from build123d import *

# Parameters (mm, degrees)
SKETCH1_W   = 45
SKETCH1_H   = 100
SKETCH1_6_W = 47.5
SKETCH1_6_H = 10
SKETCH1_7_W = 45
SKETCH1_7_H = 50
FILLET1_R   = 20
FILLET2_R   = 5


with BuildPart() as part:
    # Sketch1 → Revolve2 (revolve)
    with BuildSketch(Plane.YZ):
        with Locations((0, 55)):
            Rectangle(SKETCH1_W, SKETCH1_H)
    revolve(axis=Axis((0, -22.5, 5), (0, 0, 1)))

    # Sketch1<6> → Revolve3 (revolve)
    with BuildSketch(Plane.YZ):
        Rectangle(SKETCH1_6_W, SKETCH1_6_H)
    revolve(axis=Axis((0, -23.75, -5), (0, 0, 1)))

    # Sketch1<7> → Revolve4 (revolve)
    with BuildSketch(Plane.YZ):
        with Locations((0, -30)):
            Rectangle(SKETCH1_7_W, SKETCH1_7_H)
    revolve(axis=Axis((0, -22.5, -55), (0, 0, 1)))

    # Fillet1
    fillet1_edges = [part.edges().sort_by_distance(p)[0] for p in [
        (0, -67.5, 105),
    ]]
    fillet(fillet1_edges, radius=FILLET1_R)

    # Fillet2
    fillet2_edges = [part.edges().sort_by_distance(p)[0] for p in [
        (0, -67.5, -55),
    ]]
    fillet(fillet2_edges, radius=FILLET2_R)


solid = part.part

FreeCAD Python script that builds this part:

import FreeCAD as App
import Part
import Sketcher
from FreeCAD import Vector


def edges_at(feature, points):
    """Names of the edges that pass closest to the given points."""
    edges = feature.Shape.Edges
    near = lambda p: min(range(len(edges)), key=lambda i: edges[i].distToShape(Part.Vertex(*p))[0])
    return sorted({f"Edge{near(p) + 1}" for p in points})

doc = App.newDocument("Part")
params = doc.addObject("Spreadsheet::Sheet", "Params")
for row, (alias, value) in enumerate([
    ("sketch1_width", "45 mm"),
    ("sketch1_height", "100 mm"),
    ("revolution_angle", "360 deg"),
    ("sketch2_height", "10 mm"),
    ("sketch2_width", "47.5 mm"),
    ("revolution2_angle", "360 deg"),
    ("sketch3_width", "45 mm"),
    ("sketch3_height", "50 mm"),
    ("revolution3_angle", "360 deg"),
    ("fillet_radius", "20 mm"),
    ("fillet2_radius", "5 mm"),
], start=1):
    params.set(f"A{row}", alias)
    params.set(f"B{row}", "=" + value)
    params.setAlias(f"B{row}", alias)

body = doc.addObject("PartDesign::Body", "Body")

# Sketch on YZ plane
sketch1 = doc.addObject("Sketcher::SketchObject", "Sketch")
body.addObject(sketch1)
sketch1.AttachmentSupport = (doc.YZ_Plane, [""])
sketch1.MapMode = "FlatFace"
sketch1.addGeometry(Part.LineSegment(Vector(-22.5, 105, 0), Vector(-22.5, 5, 0)), False)
sketch1.addGeometry(Part.LineSegment(Vector(-22.5, 5, 0), Vector(22.5, 5, 0)), False)
sketch1.addGeometry(Part.LineSegment(Vector(22.5, 5, 0), Vector(22.5, 105, 0)), False)
sketch1.addGeometry(Part.LineSegment(Vector(22.5, 105, 0), Vector(-22.5, 105, 0)), False)
sketch1.addGeometry(Part.LineSegment(Vector(-22.5, 5, 0), Vector(-22.5, 105, 0)), True)  # axis
sketch1.addConstraint(Sketcher.Constraint("Coincident", 0, 2, 1, 1))
sketch1.addConstraint(Sketcher.Constraint("Coincident", 1, 2, 2, 1))
sketch1.addConstraint(Sketcher.Constraint("Coincident", 2, 2, 3, 1))
sketch1.addConstraint(Sketcher.Constraint("Coincident", 3, 2, 0, 1))
sketch1.addConstraint(Sketcher.Constraint("Vertical", 0))
sketch1.addConstraint(Sketcher.Constraint("Horizontal", 1))
sketch1.addConstraint(Sketcher.Constraint("Vertical", 2))
sketch1.addConstraint(Sketcher.Constraint("Horizontal", 3))
sketch1.addConstraint(Sketcher.Constraint("Vertical", 4))
sketch1.addConstraint(Sketcher.Constraint("Coincident", 4, 1, 0, 2))
sketch1.addConstraint(Sketcher.Constraint("Symmetric", 2, 2, 4, 2, -2))
sketch1.addConstraint(Sketcher.Constraint("DistanceX", 1, 1, 1, 2, 45.0))
sketch1.addConstraint(Sketcher.Constraint("DistanceY", 0, 2, 0, 1, 100.0))
sketch1.addConstraint(Sketcher.Constraint("DistanceY", -1, 1, 0, 2, 5.0))
sketch1.setExpression("Constraints[11]", "Params.sketch1_width")
sketch1.setExpression("Constraints[12]", "Params.sketch1_height")
revolution = doc.addObject("PartDesign::Revolution", "Revolution")
body.addObject(revolution)
revolution.Profile = sketch1
revolution.ReferenceAxis = (sketch1, ["Axis0"])
revolution.setExpression("Angle", "Params.revolution_angle")

# Sketch on YZ plane
sketch2 = doc.addObject("Sketcher::SketchObject", "Sketch001")
body.addObject(sketch2)
sketch2.AttachmentSupport = (doc.YZ_Plane, [""])
sketch2.MapMode = "FlatFace"
sketch2.addGeometry(Part.LineSegment(Vector(-23.75, 5, 0), Vector(-23.75, -5, 0)), False)
sketch2.addGeometry(Part.LineSegment(Vector(-23.75, -5, 0), Vector(23.75, -5, 0)), False)
sketch2.addGeometry(Part.LineSegment(Vector(23.75, -5, 0), Vector(23.75, 5, 0)), False)
sketch2.addGeometry(Part.LineSegment(Vector(23.75, 5, 0), Vector(-23.75, 5, 0)), False)
sketch2.addGeometry(Part.LineSegment(Vector(-23.75, -5, 0), Vector(-23.75, 5, 0)), True)  # axis
sketch2.addConstraint(Sketcher.Constraint("Coincident", 0, 2, 1, 1))
sketch2.addConstraint(Sketcher.Constraint("Coincident", 1, 2, 2, 1))
sketch2.addConstraint(Sketcher.Constraint("Coincident", 2, 2, 3, 1))
sketch2.addConstraint(Sketcher.Constraint("Coincident", 3, 2, 0, 1))
sketch2.addConstraint(Sketcher.Constraint("Vertical", 0))
sketch2.addConstraint(Sketcher.Constraint("Horizontal", 1))
sketch2.addConstraint(Sketcher.Constraint("Vertical", 2))
sketch2.addConstraint(Sketcher.Constraint("Horizontal", 3))
sketch2.addConstraint(Sketcher.Constraint("Vertical", 4))
sketch2.addConstraint(Sketcher.Constraint("Coincident", 4, 1, 0, 2))
sketch2.addConstraint(Sketcher.Constraint("Symmetric", 0, 2, 2, 2, -1, 1))
sketch2.addConstraint(Sketcher.Constraint("Horizontal", 2, 2, 4, 2))
sketch2.addConstraint(Sketcher.Constraint("DistanceY", 0, 2, 0, 1, 10.0))
sketch2.addConstraint(Sketcher.Constraint("DistanceX", 1, 1, 1, 2, 47.5))
sketch2.setExpression("Constraints[12]", "Params.sketch2_height")
sketch2.setExpression("Constraints[13]", "Params.sketch2_width")
revolution2 = doc.addObject("PartDesign::Revolution", "Revolution001")
body.addObject(revolution2)
revolution2.Profile = sketch2
revolution2.ReferenceAxis = (sketch2, ["Axis0"])
revolution2.setExpression("Angle", "Params.revolution2_angle")

# Sketch on YZ plane
sketch3 = doc.addObject("Sketcher::SketchObject", "Sketch002")
body.addObject(sketch3)
sketch3.AttachmentSupport = (doc.YZ_Plane, [""])
sketch3.MapMode = "FlatFace"
sketch3.addGeometry(Part.LineSegment(Vector(-22.5, -5, 0), Vector(-22.5, -55, 0)), False)
sketch3.addGeometry(Part.LineSegment(Vector(-22.5, -55, 0), Vector(22.5, -55, 0)), False)
sketch3.addGeometry(Part.LineSegment(Vector(22.5, -55, 0), Vector(22.5, -5, 0)), False)
sketch3.addGeometry(Part.LineSegment(Vector(22.5, -5, 0), Vector(-22.5, -5, 0)), False)
sketch3.addGeometry(Part.LineSegment(Vector(-22.5, -55, 0), Vector(-22.5, -5, 0)), True)  # axis
sketch3.addConstraint(Sketcher.Constraint("Coincident", 0, 2, 1, 1))
sketch3.addConstraint(Sketcher.Constraint("Coincident", 1, 2, 2, 1))
sketch3.addConstraint(Sketcher.Constraint("Coincident", 2, 2, 3, 1))
sketch3.addConstraint(Sketcher.Constraint("Coincident", 3, 2, 0, 1))
sketch3.addConstraint(Sketcher.Constraint("Vertical", 0))
sketch3.addConstraint(Sketcher.Constraint("Horizontal", 1))
sketch3.addConstraint(Sketcher.Constraint("Vertical", 2))
sketch3.addConstraint(Sketcher.Constraint("Horizontal", 3))
sketch3.addConstraint(Sketcher.Constraint("Vertical", 4))
sketch3.addConstraint(Sketcher.Constraint("Coincident", 4, 1, 0, 2))
sketch3.addConstraint(Sketcher.Constraint("Symmetric", 2, 2, 4, 2, -2))
sketch3.addConstraint(Sketcher.Constraint("DistanceX", 1, 1, 1, 2, 45.0))
sketch3.addConstraint(Sketcher.Constraint("DistanceY", 0, 2, 0, 1, 50.0))
sketch3.addConstraint(Sketcher.Constraint("DistanceY", 0, 2, -1, 1, 55.0))
sketch3.setExpression("Constraints[11]", "Params.sketch3_width")
sketch3.setExpression("Constraints[12]", "Params.sketch3_height")
revolution3 = doc.addObject("PartDesign::Revolution", "Revolution002")
body.addObject(revolution3)
revolution3.Profile = sketch3
revolution3.ReferenceAxis = (sketch3, ["Axis0"])
revolution3.setExpression("Angle", "Params.revolution3_angle")
doc.recompute()

fillet = doc.addObject("PartDesign::Fillet", "Fillet")
body.addObject(fillet)
fillet.Base = (revolution3, edges_at(revolution3, [(0, -67.5, 105)]))
fillet.setExpression("Radius", "Params.fillet_radius")
doc.recompute()

fillet2 = doc.addObject("PartDesign::Fillet", "Fillet001")
body.addObject(fillet2)
fillet2.Base = (fillet, edges_at(fillet, [(0, -67.5, -55)]))
fillet2.setExpression("Radius", "Params.fillet2_radius")

doc.recompute()
